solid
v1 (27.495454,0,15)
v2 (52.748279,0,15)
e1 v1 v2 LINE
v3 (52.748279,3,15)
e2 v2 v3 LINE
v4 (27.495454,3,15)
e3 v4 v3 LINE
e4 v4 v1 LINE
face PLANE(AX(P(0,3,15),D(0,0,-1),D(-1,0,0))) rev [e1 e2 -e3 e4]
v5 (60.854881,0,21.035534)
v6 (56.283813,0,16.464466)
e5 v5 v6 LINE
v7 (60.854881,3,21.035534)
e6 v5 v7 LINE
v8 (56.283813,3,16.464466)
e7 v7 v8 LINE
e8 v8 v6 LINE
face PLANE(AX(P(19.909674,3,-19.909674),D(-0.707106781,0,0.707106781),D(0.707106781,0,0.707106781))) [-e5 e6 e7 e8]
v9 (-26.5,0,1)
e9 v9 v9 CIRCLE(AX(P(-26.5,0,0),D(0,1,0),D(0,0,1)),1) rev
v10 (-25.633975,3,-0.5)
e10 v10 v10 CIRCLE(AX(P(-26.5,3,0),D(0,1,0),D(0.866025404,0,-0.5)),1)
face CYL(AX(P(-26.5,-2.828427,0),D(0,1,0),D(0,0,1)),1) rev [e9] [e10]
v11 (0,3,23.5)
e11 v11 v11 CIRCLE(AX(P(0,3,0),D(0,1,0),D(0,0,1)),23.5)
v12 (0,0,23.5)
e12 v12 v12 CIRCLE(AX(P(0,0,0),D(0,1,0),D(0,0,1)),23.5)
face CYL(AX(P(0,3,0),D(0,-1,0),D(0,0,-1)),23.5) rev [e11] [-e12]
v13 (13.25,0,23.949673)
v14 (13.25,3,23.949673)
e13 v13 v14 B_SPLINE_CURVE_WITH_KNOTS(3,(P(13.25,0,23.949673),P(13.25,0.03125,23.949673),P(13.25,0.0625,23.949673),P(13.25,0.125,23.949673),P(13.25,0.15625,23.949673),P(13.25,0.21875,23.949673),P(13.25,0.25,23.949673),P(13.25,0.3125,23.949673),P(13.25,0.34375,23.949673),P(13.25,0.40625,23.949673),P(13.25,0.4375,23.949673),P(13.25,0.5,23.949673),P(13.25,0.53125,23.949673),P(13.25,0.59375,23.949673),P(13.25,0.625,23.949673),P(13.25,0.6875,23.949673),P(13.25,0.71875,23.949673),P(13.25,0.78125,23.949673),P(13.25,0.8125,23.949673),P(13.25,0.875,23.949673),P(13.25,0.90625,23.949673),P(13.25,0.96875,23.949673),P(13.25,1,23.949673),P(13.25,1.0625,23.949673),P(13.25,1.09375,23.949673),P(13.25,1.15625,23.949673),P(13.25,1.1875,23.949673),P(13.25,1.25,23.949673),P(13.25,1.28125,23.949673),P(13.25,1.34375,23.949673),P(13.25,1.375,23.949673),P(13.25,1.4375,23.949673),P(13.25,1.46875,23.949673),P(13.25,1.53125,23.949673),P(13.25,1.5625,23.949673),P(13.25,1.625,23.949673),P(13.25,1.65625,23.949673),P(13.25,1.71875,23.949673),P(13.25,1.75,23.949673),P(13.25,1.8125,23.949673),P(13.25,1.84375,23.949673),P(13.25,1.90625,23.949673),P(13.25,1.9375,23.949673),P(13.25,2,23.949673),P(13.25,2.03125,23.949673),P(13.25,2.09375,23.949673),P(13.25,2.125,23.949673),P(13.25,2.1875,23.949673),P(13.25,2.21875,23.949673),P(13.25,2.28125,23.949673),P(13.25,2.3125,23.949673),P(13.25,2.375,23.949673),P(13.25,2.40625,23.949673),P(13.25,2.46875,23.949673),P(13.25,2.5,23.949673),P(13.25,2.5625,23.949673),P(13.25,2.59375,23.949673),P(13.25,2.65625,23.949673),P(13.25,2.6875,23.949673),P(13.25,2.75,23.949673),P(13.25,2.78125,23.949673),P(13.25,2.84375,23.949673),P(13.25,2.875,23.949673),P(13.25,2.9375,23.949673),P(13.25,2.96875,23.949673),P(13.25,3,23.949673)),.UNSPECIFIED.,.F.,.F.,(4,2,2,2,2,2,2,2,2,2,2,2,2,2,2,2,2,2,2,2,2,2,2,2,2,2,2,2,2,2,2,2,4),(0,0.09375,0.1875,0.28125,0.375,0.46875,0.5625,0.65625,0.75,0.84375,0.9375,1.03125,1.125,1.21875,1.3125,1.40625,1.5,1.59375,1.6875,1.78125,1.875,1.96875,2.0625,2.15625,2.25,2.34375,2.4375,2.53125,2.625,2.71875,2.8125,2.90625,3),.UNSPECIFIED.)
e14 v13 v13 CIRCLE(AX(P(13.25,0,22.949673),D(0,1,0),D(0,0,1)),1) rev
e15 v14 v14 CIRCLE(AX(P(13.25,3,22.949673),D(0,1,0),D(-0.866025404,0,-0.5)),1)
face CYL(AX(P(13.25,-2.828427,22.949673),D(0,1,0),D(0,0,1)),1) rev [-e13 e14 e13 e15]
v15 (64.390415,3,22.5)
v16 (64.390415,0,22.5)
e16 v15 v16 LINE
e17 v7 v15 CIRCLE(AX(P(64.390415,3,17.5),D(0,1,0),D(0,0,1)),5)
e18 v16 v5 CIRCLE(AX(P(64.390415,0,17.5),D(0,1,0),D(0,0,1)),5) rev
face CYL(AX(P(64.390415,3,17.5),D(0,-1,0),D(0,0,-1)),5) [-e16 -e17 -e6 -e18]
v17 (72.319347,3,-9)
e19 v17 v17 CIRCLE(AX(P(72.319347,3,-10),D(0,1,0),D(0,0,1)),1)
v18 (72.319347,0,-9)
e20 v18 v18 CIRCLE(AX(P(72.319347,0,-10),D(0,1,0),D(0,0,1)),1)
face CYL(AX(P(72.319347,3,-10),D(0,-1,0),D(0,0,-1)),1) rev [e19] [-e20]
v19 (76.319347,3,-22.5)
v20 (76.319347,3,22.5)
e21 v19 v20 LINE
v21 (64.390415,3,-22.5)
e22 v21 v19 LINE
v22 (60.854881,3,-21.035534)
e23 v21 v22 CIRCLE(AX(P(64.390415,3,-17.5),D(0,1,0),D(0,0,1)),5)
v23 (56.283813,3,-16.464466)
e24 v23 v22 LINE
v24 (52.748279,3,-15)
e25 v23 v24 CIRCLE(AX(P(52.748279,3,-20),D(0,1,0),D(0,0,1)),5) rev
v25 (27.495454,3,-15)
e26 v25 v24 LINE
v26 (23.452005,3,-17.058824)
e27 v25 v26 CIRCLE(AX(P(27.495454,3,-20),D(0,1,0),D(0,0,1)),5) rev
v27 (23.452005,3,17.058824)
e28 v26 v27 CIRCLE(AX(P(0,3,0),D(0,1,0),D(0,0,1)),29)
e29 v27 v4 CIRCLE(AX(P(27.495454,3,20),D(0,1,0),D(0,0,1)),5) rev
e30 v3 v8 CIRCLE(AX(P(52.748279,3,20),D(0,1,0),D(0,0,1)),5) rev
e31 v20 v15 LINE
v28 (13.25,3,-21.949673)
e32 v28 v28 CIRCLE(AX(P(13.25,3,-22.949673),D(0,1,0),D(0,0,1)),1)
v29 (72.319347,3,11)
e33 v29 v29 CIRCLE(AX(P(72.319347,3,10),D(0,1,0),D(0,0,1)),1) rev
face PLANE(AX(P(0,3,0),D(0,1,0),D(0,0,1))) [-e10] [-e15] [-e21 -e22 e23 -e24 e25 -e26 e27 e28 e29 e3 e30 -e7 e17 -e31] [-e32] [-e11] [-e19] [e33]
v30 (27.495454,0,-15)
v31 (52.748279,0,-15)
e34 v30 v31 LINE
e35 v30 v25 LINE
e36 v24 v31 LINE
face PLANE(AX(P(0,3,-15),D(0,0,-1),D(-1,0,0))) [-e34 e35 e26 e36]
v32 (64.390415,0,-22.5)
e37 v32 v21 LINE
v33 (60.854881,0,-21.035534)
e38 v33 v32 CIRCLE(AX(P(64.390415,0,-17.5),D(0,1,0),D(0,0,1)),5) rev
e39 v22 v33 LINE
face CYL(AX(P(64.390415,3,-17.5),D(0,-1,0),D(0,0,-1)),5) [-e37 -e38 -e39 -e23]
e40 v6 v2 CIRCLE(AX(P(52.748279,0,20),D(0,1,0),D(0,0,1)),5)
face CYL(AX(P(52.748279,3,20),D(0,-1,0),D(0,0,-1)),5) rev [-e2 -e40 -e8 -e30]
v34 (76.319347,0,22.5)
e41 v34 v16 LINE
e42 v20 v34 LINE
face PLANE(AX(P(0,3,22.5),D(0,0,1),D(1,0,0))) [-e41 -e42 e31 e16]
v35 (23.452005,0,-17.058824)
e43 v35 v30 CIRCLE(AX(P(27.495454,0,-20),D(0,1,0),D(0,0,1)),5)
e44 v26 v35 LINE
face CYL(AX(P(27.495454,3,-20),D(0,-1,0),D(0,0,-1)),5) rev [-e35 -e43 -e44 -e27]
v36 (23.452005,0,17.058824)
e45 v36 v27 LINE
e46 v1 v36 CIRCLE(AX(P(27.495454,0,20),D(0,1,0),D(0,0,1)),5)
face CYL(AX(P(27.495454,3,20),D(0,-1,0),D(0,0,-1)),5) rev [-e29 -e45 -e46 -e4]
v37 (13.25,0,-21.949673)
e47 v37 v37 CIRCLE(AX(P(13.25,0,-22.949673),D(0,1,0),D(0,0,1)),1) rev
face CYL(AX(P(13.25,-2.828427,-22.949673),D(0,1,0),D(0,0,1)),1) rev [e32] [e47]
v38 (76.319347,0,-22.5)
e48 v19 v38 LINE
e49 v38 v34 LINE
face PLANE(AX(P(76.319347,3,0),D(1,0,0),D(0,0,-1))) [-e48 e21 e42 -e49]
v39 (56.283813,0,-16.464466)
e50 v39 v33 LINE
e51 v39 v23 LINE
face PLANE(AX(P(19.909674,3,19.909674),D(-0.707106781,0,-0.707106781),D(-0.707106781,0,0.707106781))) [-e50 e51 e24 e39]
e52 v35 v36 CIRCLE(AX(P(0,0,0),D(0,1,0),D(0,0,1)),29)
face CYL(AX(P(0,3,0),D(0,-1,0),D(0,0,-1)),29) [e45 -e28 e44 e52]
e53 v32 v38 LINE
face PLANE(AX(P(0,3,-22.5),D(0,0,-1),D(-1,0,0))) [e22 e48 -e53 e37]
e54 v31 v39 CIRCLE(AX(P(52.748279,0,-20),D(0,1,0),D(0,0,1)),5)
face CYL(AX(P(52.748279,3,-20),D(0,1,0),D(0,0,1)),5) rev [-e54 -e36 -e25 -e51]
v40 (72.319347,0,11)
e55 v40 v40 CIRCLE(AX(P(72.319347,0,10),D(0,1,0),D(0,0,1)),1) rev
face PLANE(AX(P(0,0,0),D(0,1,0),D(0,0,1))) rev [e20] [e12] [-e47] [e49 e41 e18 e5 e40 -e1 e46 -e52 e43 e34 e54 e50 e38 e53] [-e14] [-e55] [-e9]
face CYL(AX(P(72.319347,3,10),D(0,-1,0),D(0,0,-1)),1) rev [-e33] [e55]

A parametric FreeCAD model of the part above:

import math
import FreeCAD as App
import Part
import Sketcher
Q = App.Units.Quantity


def edges_at(feature, points):
    """Names of the edges that pass closest to the given points."""
    edges = feature.Shape.Edges
    near = lambda p: min(range(len(edges)), key=lambda i: edges[i].distToShape(Part.Vertex(*p))[0])
    return sorted({f"Edge{near(p) + 1}" for p in points})

doc = App.newDocument("Part")
params = doc.addObject("Spreadsheet::Sheet", "Params")
for row, (alias, value) in enumerate([
    ("sketch1_diameter", "2 mm"),
    ("sketch1_diameter2", "47 mm"),
    ("sketch1_radius", "29 mm"),
    ("sketch1_width", "30 mm"),
    ("sketch1_width2", "14 mm"),
    ("pad1_length", "3 mm"),
    ("fillet_radius", "5 mm"),
    ("sketch2_diameter", "2 mm"),
    ("pocket1_length", "3 mm"),
], start=1):
    params.set(f"A{row}", alias)
    params.set(f"B{row}", "=" + value)
    params.setAlias(f"B{row}", alias)

body = doc.addObject("PartDesign::Body", "Body")

# Sketch on XZ plane
sketch1 = body.newObject("Sketcher::SketchObject", "Sketch")
sketch1.AttachmentSupport = (doc.getObject("XZ_Plane"), [""])
sketch1.MapMode = "FlatFace"
sketch1.addGeometry(Part.LineSegment(App.Vector(54.8, -15, 0), App.Vector(24.8, -15, 0)), False)
sketch1.addGeometry(Part.ArcOfCircle(Part.Circle(App.Vector(0, 0, 0), App.Vector(0, 0, 1), 29), math.radians(31), math.radians(329)), False)
sketch1.addGeometry(Part.LineSegment(App.Vector(24.8, 15, 0), App.Vector(54.8, 15, 0)), False)
sketch1.addGeometry(Part.LineSegment(App.Vector(54.8, 15, 0), App.Vector(62.3, 22.5, 0)), False)
sketch1.addGeometry(Part.LineSegment(App.Vector(62.3, 22.5, 0), App.Vector(76.3, 22.5, 0)), False)
sketch1.addGeometry(Part.LineSegment(App.Vector(76.3, 22.5, 0), App.Vector(76.3, -22.5, 0)), False)
sketch1.addGeometry(Part.LineSegment(App.Vector(76.3, -22.5, 0), App.Vector(62.3, -22.5, 0)), False)
sketch1.addGeometry(Part.LineSegment(App.Vector(62.3, -22.5, 0), App.Vector(54.8, -15, 0)), False)
sketch1.addGeometry(Part.Circle(App.Vector(72.3, 10, 0), App.Vector(0, 0, 1), 1), False)
sketch1.addGeometry(Part.Circle(App.Vector(72.3, -10, 0), App.Vector(0, 0, 1), 1), False)
sketch1.addGeometry(Part.Circle(App.Vector(0, 0, 0), App.Vector(0, 0, 1), 23.5), False)
sketch1.addConstraint(Sketcher.Constraint("Coincident", 0, 2, 1, 2))
sketch1.addConstraint(Sketcher.Constraint("Coincident", 1, 1, 2, 1))
sketch1.addConstraint(Sketcher.Constraint("Coincident", 2, 2, 3, 1))
sketch1.addConstraint(Sketcher.Constraint("Coincident", 3, 2, 4, 1))
sketch1.addConstraint(Sketcher.Constraint("Coincident", 4, 2, 5, 1))
sketch1.addConstraint(Sketcher.Constraint("Coincident", 5, 2, 6, 1))
sketch1.addConstraint(Sketcher.Constraint("Coincident", 6, 2, 7, 1))
sketch1.addConstraint(Sketcher.Constraint("Coincident", 7, 2, 0, 1))
sketch1.addConstraint(Sketcher.Constraint("Horizontal", 0))
sketch1.addConstraint(Sketcher.Constraint("Horizontal", 2))
sketch1.addConstraint(Sketcher.Constraint("Horizontal", 4))
sketch1.addConstraint(Sketcher.Constraint("Vertical", 5))
sketch1.addConstraint(Sketcher.Constraint("Horizontal", 6))
sketch1.addConstraint(Sketcher.Constraint("Coincident", 1, 3, -1, 1))
sketch1.addConstraint(Sketcher.Constraint("Coincident", 10, 3, -1, 1))
sketch1.addConstraint(Sketcher.Constraint("Equal", 8, 9))
sketch1.addConstraint(Sketcher.Constraint("Symmetric", 8, 3, 9, 3, -1))
sketch1.addConstraint(Sketcher.Constraint("Symmetric", 3, 2, 6, 2, -1))
sketch1.addConstraint(Sketcher.Constraint("Symmetric", 2, 2, 7, 2, -1))
sketch1.addConstraint(Sketcher.Constraint("Perpendicular", 3, 7))
sketch1.addConstraint(Sketcher.Constraint("Diameter", 8, Q("2 mm")))
sketch1.addConstraint(Sketcher.Constraint("Diameter", 10, Q("47 mm")))
sketch1.addConstraint(Sketcher.Constraint("Radius", 1, Q("29 mm")))
sketch1.addConstraint(Sketcher.Constraint("DistanceX", 0, 2, 0, 1, Q("30 mm")))
sketch1.addConstraint(Sketcher.Constraint("DistanceX", 4, 1, 4, 2, Q("14 mm")))
sketch1.addConstraint(Sketcher.Constraint("DistanceY", 5, 2, 5, 1, Q("45 mm")))
sketch1.addConstraint(Sketcher.Constraint("DistanceY", -1, 1, 8, 3, Q("10 mm")))
sketch1.addConstraint(Sketcher.Constraint("DistanceY", 0, 2, -1, 1, Q("15 mm")))
sketch1.addConstraint(Sketcher.Constraint("DistanceX", 3, 2, 8, 3, Q("10 mm")))
sketch1.setExpression("Constraints[20]", "Params.sketch1_diameter")
sketch1.setExpression("Constraints[21]", "Params.sketch1_diameter2")
sketch1.setExpression("Constraints[22]", "Params.sketch1_radius")
sketch1.setExpression("Constraints[23]", "Params.sketch1_width")
sketch1.setExpression("Constraints[24]", "Params.sketch1_width2")
pad1 = body.newObject("PartDesign::Pad", "Pad")
pad1.Profile = sketch1
pad1.setExpression("Length", "Params.pad1_length")
pad1.Reversed = True
doc.recompute()

fillet = body.newObject("PartDesign::Fillet", "Fillet")
fillet.Base = (pad1, edges_at(pad1, [
    (54.819, 1.5, -15),
    (62.319, 1.5, -22.5),
    (62.319, 1.5, 22.5),
    (54.819, 1.5, 15),
    (24.819, 1.5, 15),
    (24.819, 1.5, -15),
]))
fillet.setExpression("Radius", "Params.fillet_radius")

# Sketch on XZ plane
sketch2 = body.newObject("Sketcher::SketchObject", "Sketch001")
sketch2.AttachmentSupport = (doc.getObject("XZ_Plane"), [""])
sketch2.MapMode = "FlatFace"
sketch2.AttachmentOffset = App.Placement(App.Vector(0, 0, -3), App.Rotation())
sketch2.addGeometry(Part.Circle(App.Vector(13.2, -22.9, 0), App.Vector(0, 0, 1), 1), False)
sketch2.addConstraint(Sketcher.Constraint("Diameter", 0, Q("2 mm")))
sketch2.addConstraint(Sketcher.Constraint("DistanceX", -1, 1, 0, 3, Q("13.25 mm")))
sketch2.addConstraint(Sketcher.Constraint("DistanceY", 0, 3, -1, 1, Q("22.949673 mm")))
sketch2.setExpression("Constraints[0]", "Params.sketch2_diameter")
pocket1 = body.newObject("PartDesign::Pocket", "Pocket")
pocket1.Profile = sketch2
pocket1.setExpression("Length", "Params.pocket1_length")
pocket1.Reversed = True
doc.recompute()

polarpattern = body.newObject("PartDesign::PolarPattern", "PolarPattern")
polarpattern.Originals = [pocket1]
polarpattern.Axis = (doc.getObject("Y_Axis"), [""])
polarpattern.Angle = 360
polarpattern.Occurrences = 3
body.Tip = polarpattern

doc.recompute()
